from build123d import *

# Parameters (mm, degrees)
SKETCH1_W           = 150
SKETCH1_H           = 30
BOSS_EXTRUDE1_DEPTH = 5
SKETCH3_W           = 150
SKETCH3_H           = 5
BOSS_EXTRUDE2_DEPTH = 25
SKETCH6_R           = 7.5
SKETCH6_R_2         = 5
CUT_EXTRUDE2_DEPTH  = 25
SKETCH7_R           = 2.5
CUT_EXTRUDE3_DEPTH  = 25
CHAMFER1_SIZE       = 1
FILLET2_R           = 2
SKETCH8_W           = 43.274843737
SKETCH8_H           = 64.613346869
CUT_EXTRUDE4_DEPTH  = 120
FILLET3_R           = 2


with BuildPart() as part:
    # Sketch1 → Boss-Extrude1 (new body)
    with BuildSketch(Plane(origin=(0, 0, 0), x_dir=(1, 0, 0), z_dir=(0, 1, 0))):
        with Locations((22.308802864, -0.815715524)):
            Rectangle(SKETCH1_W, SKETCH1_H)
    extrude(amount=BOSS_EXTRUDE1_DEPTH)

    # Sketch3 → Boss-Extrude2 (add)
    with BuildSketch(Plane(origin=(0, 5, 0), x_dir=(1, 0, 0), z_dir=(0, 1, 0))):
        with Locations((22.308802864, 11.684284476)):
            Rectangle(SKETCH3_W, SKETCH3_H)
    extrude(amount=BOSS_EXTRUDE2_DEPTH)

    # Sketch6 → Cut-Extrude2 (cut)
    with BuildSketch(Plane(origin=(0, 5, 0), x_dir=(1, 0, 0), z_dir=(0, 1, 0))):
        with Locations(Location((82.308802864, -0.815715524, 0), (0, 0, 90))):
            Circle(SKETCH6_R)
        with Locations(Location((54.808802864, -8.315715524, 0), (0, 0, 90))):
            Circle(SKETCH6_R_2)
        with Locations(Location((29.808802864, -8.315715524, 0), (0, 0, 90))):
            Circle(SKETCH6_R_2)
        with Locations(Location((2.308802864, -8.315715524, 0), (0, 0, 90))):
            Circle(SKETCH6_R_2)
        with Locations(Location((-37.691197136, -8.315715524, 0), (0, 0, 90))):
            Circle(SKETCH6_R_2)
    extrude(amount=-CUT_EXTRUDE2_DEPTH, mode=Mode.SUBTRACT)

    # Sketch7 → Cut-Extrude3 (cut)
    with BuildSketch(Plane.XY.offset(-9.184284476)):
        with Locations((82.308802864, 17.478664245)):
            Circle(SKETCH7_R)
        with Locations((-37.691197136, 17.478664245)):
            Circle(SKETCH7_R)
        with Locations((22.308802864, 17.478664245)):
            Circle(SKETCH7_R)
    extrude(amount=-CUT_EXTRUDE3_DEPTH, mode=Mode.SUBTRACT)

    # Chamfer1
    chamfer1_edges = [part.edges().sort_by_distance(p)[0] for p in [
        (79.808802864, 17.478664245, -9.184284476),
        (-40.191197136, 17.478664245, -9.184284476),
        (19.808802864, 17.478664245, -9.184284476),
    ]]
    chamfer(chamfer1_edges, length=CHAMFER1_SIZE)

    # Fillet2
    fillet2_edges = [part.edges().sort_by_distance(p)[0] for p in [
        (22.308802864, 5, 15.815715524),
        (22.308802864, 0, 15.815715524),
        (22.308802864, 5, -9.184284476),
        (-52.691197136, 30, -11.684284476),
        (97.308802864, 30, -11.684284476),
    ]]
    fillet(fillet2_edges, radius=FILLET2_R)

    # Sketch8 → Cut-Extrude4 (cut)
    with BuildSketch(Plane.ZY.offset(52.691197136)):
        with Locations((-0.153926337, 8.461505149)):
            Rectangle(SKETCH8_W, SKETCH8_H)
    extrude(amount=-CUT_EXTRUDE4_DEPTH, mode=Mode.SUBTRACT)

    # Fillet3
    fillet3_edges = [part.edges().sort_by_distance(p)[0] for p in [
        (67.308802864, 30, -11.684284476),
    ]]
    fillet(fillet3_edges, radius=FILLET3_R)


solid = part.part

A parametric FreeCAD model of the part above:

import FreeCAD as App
import Part
import Sketcher


def edges_at(feature, points):
    """Names of the edges that pass closest to the given points."""
    edges = feature.Shape.Edges
    near = lambda p: min(range(len(edges)), key=lambda i: edges[i].distToShape(Part.Vertex(*p))[0])
    return sorted({f"Edge{near(p) + 1}" for p in points})

doc = App.newDocument("Part")
body = doc.addObject("PartDesign::Body", "Body")

sketch1 = body.newObject("Sketcher::SketchObject", "Sketch")
sketch1.AttachmentSupport = (doc.getObject("XZ_Plane"), [""])
sketch1.MapMode = "FlatFace"
sketch1.addGeometry([
    Part.LineSegment(App.Vector(-53, -14, 0), App.Vector(-53, 16, 0)),
    Part.LineSegment(App.Vector(-53, 16, 0), App.Vector(97, 16, 0)),
    Part.LineSegment(App.Vector(97, 16, 0), App.Vector(97, -14, 0)),
    Part.LineSegment(App.Vector(97, -14, 0), App.Vector(-53, -14, 0)),
], False)
sketch1.addConstraint([
    Sketcher.Constraint("Coincident", 0, 2, 1, 1),
    Sketcher.Constraint("Coincident", 1, 2, 2, 1),
    Sketcher.Constraint("Coincident", 2, 2, 3, 1),
    Sketcher.Constraint("Coincident", 3, 2, 0, 1),
    Sketcher.Constraint("Vertical", 0),
    Sketcher.Constraint("Horizontal", 1),
    Sketcher.Constraint("Vertical", 2),
    Sketcher.Constraint("Horizontal", 3),
    Sketcher.Constraint("DistanceX", 1, 1, 1, 2, 150.0),
    Sketcher.Constraint("DistanceY", 0, 1, 0, 2, 30.0),
    Sketcher.Constraint("DistanceX", 0, 2, -1, 1, 52.691197),
    Sketcher.Constraint("DistanceY", -1, 1, 0, 2, 15.815716),
])
pad1 = body.newObject("PartDesign::Pad", "Pad")
pad1.Profile = sketch1
pad1.Length = 5
pad1.Reversed = True

sketch2 = body.newObject("Sketcher::SketchObject", "Sketch001")
sketch2.AttachmentSupport = (doc.getObject("XZ_Plane"), [""])
sketch2.MapMode = "FlatFace"
sketch2.AttachmentOffset = App.Placement(App.Vector(0, 0, -5), App.Rotation())
sketch2.addGeometry([
    Part.LineSegment(App.Vector(-53, -14, 0), App.Vector(-53, -9, 0)),
    Part.LineSegment(App.Vector(-53, -9, 0), App.Vector(97, -9, 0)),
    Part.LineSegment(App.Vector(97, -9, 0), App.Vector(97, -14, 0)),
    Part.LineSegment(App.Vector(97, -14, 0), App.Vector(-53, -14, 0)),
], False)
sketch2.addConstraint([
    Sketcher.Constraint("Coincident", 0, 2, 1, 1),
    Sketcher.Constraint("Coincident", 1, 2, 2, 1),
    Sketcher.Constraint("Coincident", 2, 2, 3, 1),
    Sketcher.Constraint("Coincident", 3, 2, 0, 1),
    Sketcher.Constraint("Vertical", 0),
    Sketcher.Constraint("Horizontal", 1),
    Sketcher.Constraint("Vertical", 2),
    Sketcher.Constraint("Horizontal", 3),
    Sketcher.Constraint("DistanceX", 1, 1, 1, 2, 150.0),
    Sketcher.Constraint("DistanceY", 0, 1, 0, 2, 5.0),
    Sketcher.Constraint("DistanceX", 0, 2, -1, 1, 52.691197),
    Sketcher.Constraint("DistanceY", 0, 2, -1, 1, 9.184284),
])
pad2 = body.newObject("PartDesign::Pad", "Pad001")
pad2.Profile = sketch2
pad2.Length = 25
pad2.Reversed = True

sketch3 = body.newObject("Sketcher::SketchObject", "Sketch002")
sketch3.AttachmentSupport = (doc.getObject("XZ_Plane"), [""])
sketch3.MapMode = "FlatFace"
sketch3.AttachmentOffset = App.Placement(App.Vector(0, 0, -5), App.Rotation())
sketch3.addGeometry([
    Part.Circle(App.Vector(82, 1, 0), App.Vector(0, 0, 1), 8),
    Part.Circle(App.Vector(55, 8, 0), App.Vector(0, 0, 1), 5),
    Part.Circle(App.Vector(30, 8, 0), App.Vector(0, 0, 1), 5),
    Part.Circle(App.Vector(2, 8, 0), App.Vector(0, 0, 1), 5),
    Part.Circle(App.Vector(-38, 8, 0), App.Vector(0, 0, 1), 5),
], False)
sketch3.addConstraint([
    Sketcher.Constraint("Equal", 1, 2),
    Sketcher.Constraint("Equal", 2, 3),
    Sketcher.Constraint("Equal", 3, 4),
    Sketcher.Constraint("Horizontal", 1, 3, 2, 3),
    Sketcher.Constraint("Horizontal", 2, 3, 3, 3),
    Sketcher.Constraint("Horizontal", 3, 3, 4, 3),
    Sketcher.Constraint("Diameter", 0, 15.0),
    Sketcher.Constraint("Diameter", 1, 10.0),
    Sketcher.Constraint("DistanceX", 2, 3, 1, 3, 25.0),
    Sketcher.Constraint("DistanceX", 3, 3, 0, 3, 80.0),
    Sketcher.Constraint("DistanceX", 4, 3, 3, 3, 40.0),
    Sketcher.Constraint("DistanceX", 1, 3, 0, 3, 27.5),
    Sketcher.Constraint("DistanceY", 0, 3, 1, 3, 7.5),
    Sketcher.Constraint("DistanceX", -1, 1, 0, 3, 82.308803),
    Sketcher.Constraint("DistanceY", -1, 1, 0, 3, 0.815716),
])
pocket1 = body.newObject("PartDesign::Pocket", "Pocket")
pocket1.Profile = sketch3
pocket1.Length = 25
pocket1.Reversed = True

sketch4 = body.newObject("Sketcher::SketchObject", "Sketch003")
sketch4.AttachmentSupport = (doc.getObject("XY_Plane"), [""])
sketch4.MapMode = "FlatFace"
sketch4.AttachmentOffset = App.Placement(App.Vector(0, 0, -9.184284), App.Rotation())
sketch4.addGeometry([
    Part.Circle(App.Vector(82.3, 17.5, 0), App.Vector(0, 0, 1), 2.5),
    Part.Circle(App.Vector(-37.7, 17.5, 0), App.Vector(0, 0, 1), 2.5),
    Part.Circle(App.Vector(22.3, 17.5, 0), App.Vector(0, 0, 1), 2.5),
], False)
sketch4.addConstraint([
    Sketcher.Constraint("Equal", 0, 1),
    Sketcher.Constraint("Equal", 1, 2),
    Sketcher.Constraint("Horizontal", 0, 3, 1, 3),
    Sketcher.Constraint("Horizontal", 1, 3, 2, 3),
    Sketcher.Constraint("Diameter", 0, 5.0),
    Sketcher.Constraint("DistanceX", 1, 3, 0, 3, 120.0),
    Sketcher.Constraint("DistanceX", 2, 3, 0, 3, 60.0),
    Sketcher.Constraint("DistanceX", -1, 1, 0, 3, 82.308803),
    Sketcher.Constraint("DistanceY", -1, 1, 0, 3, 17.478664),
])
pocket2 = body.newObject("PartDesign::Pocket", "Pocket001")
pocket2.Profile = sketch4
pocket2.Length = 25
doc.recompute()

chamfer = body.newObject("PartDesign::Chamfer", "Chamfer")
chamfer.Base = (pocket2, edges_at(pocket2, [(79.809, 17.479, -9.184), (-40.191, 17.479, -9.184), (19.809, 17.479, -9.184)]))
chamfer.Size = 1
doc.recompute()

fillet = body.newObject("PartDesign::Fillet", "Fillet")
fillet.Base = (chamfer, edges_at(chamfer, [
    (22.309, 5, 15.816),
    (22.309, 0, 15.816),
    (22.309, 5, -9.184),
    (-52.691, 30, -11.684),
    (97.309, 30, -11.684),
]))
fillet.Radius = 2

sketch5 = body.newObject("Sketcher::SketchObject", "Sketch004")
sketch5.AttachmentSupport = (doc.getObject("YZ_Plane"), [""])
sketch5.MapMode = "FlatFace"
sketch5.AttachmentOffset = App.Placement(App.Vector(0, 0, -52.691197), App.Rotation())
sketch5.addGeometry([
    Part.LineSegment(App.Vector(41, -22, 0), App.Vector(-24, -22, 0)),
    Part.LineSegment(App.Vector(-24, -22, 0), App.Vector(-24, 21, 0)),
    Part.LineSegment(App.Vector(-24, 21, 0), App.Vector(41, 21, 0)),
    Part.LineSegment(App.Vector(41, 21, 0), App.Vector(41, -22, 0)),
], False)
sketch5.addConstraint([
    Sketcher.Constraint("Coincident", 0, 2, 1, 1),
    Sketcher.Constraint("Coincident", 1, 2, 2, 1),
    Sketcher.Constraint("Coincident", 2, 2, 3, 1),
    Sketcher.Constraint("Coincident", 3, 2, 0, 1),
    Sketcher.Constraint("Horizontal", 0),
    Sketcher.Constraint("Vertical", 1),
    Sketcher.Constraint("Horizontal", 2),
    Sketcher.Constraint("Vertical", 3),
    Sketcher.Constraint("DistanceX", 0, 2, 0, 1, 64.613347),
    Sketcher.Constraint("DistanceY", 1, 1, 1, 2, 43.274844),
    Sketcher.Constraint("DistanceX", 0, 2, -1, 1, 23.845168),
    Sketcher.Constraint("DistanceY", 0, 2, -1, 1, 21.791348),
])
pocket3 = body.newObject("PartDesign::Pocket", "Pocket002")
pocket3.Profile = sketch5
pocket3.Length = 120
pocket3.Reversed = True
doc.recompute()

fillet2 = body.newObject("PartDesign::Fillet", "Fillet001")
fillet2.Base = (pocket3, edges_at(pocket3, [(67.309, 30, -11.684)]))
fillet2.Radius = 2

doc.recompute()
